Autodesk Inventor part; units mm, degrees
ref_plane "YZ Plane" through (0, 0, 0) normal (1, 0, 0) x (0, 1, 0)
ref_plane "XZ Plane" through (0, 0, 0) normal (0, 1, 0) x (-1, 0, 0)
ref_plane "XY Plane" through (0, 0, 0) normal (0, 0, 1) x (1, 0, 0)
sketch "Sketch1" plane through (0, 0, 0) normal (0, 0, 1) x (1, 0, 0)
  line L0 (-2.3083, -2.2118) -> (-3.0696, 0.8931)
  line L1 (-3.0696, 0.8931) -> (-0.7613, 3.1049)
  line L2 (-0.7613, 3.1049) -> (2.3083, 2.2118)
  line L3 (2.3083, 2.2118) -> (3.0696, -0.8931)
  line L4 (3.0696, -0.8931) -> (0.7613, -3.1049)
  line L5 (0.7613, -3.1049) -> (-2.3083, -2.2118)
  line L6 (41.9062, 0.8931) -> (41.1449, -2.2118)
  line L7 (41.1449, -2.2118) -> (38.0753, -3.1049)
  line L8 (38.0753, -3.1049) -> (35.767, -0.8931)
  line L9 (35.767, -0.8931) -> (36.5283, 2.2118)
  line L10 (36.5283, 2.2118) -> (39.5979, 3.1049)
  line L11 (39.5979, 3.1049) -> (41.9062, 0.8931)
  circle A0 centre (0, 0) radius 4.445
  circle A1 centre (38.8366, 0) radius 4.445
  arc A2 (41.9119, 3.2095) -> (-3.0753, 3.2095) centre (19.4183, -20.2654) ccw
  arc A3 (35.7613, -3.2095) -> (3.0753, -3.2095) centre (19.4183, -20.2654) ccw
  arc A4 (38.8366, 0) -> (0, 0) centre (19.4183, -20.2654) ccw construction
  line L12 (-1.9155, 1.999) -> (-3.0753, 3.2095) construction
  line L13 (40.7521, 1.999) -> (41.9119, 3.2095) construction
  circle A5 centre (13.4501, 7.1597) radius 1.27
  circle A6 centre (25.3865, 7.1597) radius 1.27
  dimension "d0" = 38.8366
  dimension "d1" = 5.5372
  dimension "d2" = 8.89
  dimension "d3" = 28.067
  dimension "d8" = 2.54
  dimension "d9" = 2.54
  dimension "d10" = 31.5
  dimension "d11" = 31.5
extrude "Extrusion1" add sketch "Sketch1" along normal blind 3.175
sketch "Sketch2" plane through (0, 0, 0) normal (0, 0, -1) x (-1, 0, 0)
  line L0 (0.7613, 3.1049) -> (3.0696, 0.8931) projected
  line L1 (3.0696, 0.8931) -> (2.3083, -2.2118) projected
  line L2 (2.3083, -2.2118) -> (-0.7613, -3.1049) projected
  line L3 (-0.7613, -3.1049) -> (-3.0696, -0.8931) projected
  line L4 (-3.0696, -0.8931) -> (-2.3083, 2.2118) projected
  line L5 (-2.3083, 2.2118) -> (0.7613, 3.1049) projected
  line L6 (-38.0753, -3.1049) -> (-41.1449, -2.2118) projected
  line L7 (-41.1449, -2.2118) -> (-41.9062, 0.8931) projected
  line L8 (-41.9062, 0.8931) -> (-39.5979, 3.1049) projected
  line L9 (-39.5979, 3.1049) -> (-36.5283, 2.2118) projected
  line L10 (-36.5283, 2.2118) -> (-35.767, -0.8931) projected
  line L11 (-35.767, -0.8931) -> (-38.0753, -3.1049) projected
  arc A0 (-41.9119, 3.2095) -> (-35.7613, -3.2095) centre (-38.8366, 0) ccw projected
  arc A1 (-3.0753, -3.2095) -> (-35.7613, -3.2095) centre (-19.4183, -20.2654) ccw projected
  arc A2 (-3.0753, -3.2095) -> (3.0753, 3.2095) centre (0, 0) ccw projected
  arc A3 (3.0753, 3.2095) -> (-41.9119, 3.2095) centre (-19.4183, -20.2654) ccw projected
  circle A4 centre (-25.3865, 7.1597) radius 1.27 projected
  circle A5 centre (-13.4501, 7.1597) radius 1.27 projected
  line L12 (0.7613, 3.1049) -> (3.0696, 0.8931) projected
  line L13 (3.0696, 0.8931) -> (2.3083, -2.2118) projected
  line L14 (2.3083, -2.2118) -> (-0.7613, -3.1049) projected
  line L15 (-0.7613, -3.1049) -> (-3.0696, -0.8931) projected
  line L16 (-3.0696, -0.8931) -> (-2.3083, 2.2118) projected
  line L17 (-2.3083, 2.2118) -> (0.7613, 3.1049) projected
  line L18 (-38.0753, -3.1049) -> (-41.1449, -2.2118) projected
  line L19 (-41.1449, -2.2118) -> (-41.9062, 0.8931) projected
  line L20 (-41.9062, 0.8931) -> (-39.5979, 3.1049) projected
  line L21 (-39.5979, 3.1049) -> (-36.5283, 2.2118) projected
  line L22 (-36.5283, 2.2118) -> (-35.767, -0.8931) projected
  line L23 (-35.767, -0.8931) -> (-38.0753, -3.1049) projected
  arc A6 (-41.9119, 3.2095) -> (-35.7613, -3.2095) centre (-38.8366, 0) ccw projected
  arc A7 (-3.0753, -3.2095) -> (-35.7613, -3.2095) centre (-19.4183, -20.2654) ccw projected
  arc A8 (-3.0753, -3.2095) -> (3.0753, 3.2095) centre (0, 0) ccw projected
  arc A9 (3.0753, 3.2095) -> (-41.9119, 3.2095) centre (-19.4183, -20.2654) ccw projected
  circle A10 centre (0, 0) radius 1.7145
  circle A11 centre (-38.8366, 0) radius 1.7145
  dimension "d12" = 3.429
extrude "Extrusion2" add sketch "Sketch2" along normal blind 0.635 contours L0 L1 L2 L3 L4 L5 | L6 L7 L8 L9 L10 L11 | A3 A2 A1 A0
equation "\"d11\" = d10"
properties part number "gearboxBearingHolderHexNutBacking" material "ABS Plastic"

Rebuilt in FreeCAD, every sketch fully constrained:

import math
import FreeCAD as App
import Part
import Sketcher
from FreeCAD import Vector
Q = App.Units.Quantity


def add_polygon(sketch, points):
    """Adds a closed chain of lines whose ends are joined by coincident constraints."""
    first, n = sketch.GeometryCount, len(points)
    for a, b in zip(points, points[1:] + points[:1]):
        sketch.addGeometry(Part.LineSegment(App.Vector(*a, 0), App.Vector(*b, 0)), False)
    for i in range(n):
        sketch.addConstraint(Sketcher.Constraint("Coincident", first + i, 2, first + (i + 1) % n, 1))

doc = App.newDocument("Part")
body = doc.addObject("PartDesign::Body", "Body")

# Sketch on XY plane
sketch1 = doc.addObject("Sketcher::SketchObject", "Sketch")
body.addObject(sketch1)
sketch1.AttachmentSupport = (doc.XY_Plane, [""])
sketch1.MapMode = "FlatFace"
sketch1.addGeometry(Part.ArcOfCircle(Part.Circle(Vector(0, 0, 0), Vector(0, 0, 1), 4.445), math.radians(133.776743), math.radians(313.776743)), False)  # 0
sketch1.addGeometry(Part.ArcOfCircle(Part.Circle(Vector(19.4183, -20.2654, 0), Vector(0, 0, 1), 23.621968), math.radians(46.222794), math.radians(133.777206)), False)  # 1
sketch1.addGeometry(Part.ArcOfCircle(Part.Circle(Vector(38.8366, 0, 0), Vector(0, 0, 1), 4.445), math.radians(-133.776743), math.radians(46.223257)), False)  # 2
sketch1.addGeometry(Part.ArcOfCircle(Part.Circle(Vector(19.4183, -20.2654, 0), Vector(0, 0, 1), 32.512043), math.radians(46.22292), math.radians(133.77708)), False)  # 3
add_polygon(sketch1, [(0.7613, -3.1049), (-2.3083, -2.2118), (-3.0696, 0.8931), (-0.7613, 3.1049), (2.3083, 2.2118), (3.0696, -0.8931)])  # lines 4-9
sketch1.addGeometry(Part.Circle(Vector(13.4501, 7.1597, 0), Vector(0, 0, 1), 1.27), False)  # 10
sketch1.addGeometry(Part.Circle(Vector(25.3865, 7.1597, 0), Vector(0, 0, 1), 1.27), False)  # 11
add_polygon(sketch1, [(41.9062, 0.8931), (41.1449, -2.2118), (38.0753, -3.1049), (35.767, -0.8931), (36.5283, 2.2118), (39.5979, 3.1049)])  # lines 12-17
sketch1.addConstraint(Sketcher.Constraint("Tangent", 0, 2, 1, 2))
sketch1.addConstraint(Sketcher.Constraint("Tangent", 1, 1, 2, 1))
sketch1.addConstraint(Sketcher.Constraint("Tangent", 2, 2, 3, 1))
sketch1.addConstraint(Sketcher.Constraint("Tangent", 3, 2, 0, 1))
sketch1.addConstraint(Sketcher.Constraint("Coincident", 0, 3, -1, 1))
sketch1.addConstraint(Sketcher.Constraint("Coincident", 3, 3, 1, 3))
sketch1.addConstraint(Sketcher.Constraint("Equal", 10, 11))
sketch1.addConstraint(Sketcher.Constraint("Symmetric", 4, 2, 7, 2, -1, 1))
sketch1.addConstraint(Sketcher.Constraint("Symmetric", 5, 2, 8, 2, -1, 1))
sketch1.addConstraint(Sketcher.Constraint("Symmetric", 6, 2, 9, 2, -1, 1))
sketch1.addConstraint(Sketcher.Constraint("PointOnObject", 2, 3, -1))
sketch1.addConstraint(Sketcher.Constraint("Parallel", 12, 15))
sketch1.addConstraint(Sketcher.Constraint("Parallel", 13, 16))
sketch1.addConstraint(Sketcher.Constraint("Parallel", 14, 17))
sketch1.addConstraint(Sketcher.Constraint("Horizontal", 10, 3, 11, 3))
sketch1.addConstraint(Sketcher.Constraint("Horizontal", 4, 2, 12, 2))
sketch1.addConstraint(Sketcher.Constraint("Horizontal", 9, 2, 13, 2))
sketch1.addConstraint(Sketcher.Constraint("Horizontal", 8, 2, 14, 2))
sketch1.addConstraint(Sketcher.Constraint("Horizontal", 7, 2, 15, 2))
sketch1.addConstraint(Sketcher.Constraint("Horizontal", 6, 2, 16, 2))
sketch1.addConstraint(Sketcher.Constraint("Equal", 4, 5))
sketch1.addConstraint(Sketcher.Constraint("Equal", 5, 6))
sketch1.addConstraint(Sketcher.Constraint("Equal", 9, 12))
sketch1.addConstraint(Sketcher.Constraint("Equal", 12, 13))
sketch1.addConstraint(Sketcher.Constraint("Equal", 13, 14))
sketch1.addConstraint(Sketcher.Constraint("Diameter", 10, Q("0.1 in")))
sketch1.addConstraint(Sketcher.Constraint("Radius", 0, Q("0.175 in")))
sketch1.addConstraint(Sketcher.Constraint("Radius", 1, Q("0.93 in")))
sketch1.addConstraint(Sketcher.Constraint("DistanceX", -1, 1, 2, 3, Q("1.529 in")))
sketch1.addConstraint(Sketcher.Constraint("DistanceX", 0, 2, 11, 3, Q("0.8784 in")))
sketch1.addConstraint(Sketcher.Constraint("DistanceX", 10, 3, 1, 1, Q("0.8784 in")))
sketch1.addConstraint(Sketcher.Constraint("DistanceX", 3, 2, 4, 2, Q("0.0302 in")))
sketch1.addConstraint(Sketcher.Constraint("DistanceY", 5, 2, 3, 2, Q("0.0912 in")))
sketch1.addConstraint(Sketcher.Constraint("DistanceX", 3, 2, 6, 2, Q("0.0911 in")))
sketch1.addConstraint(Sketcher.Constraint("DistanceY", 0, 2, 6, 2, Q("0.2486 in")))
sketch1.addConstraint(Sketcher.Constraint("DistanceX", 12, 2, 2, 2, Q("0.0302 in")))
sketch1.addConstraint(Sketcher.Constraint("DistanceY", -1, 1, 10, 3, Q("7.1597 mm")))
pad1 = doc.addObject("PartDesign::Pad", "Pad")
body.addObject(pad1)
pad1.Profile = sketch1
pad1.Length = Q("0.125 in")

# Sketch on XY plane
sketch2 = doc.addObject("Sketcher::SketchObject", "Sketch001")
body.addObject(sketch2)
sketch2.AttachmentSupport = (doc.XY_Plane, [""])
sketch2.MapMode = "FlatFace"
sketch2.addGeometry(Part.ArcOfCircle(Part.Circle(Vector(19.4183, -20.2654, 0), Vector(0, 0, 1), 32.512043), math.radians(46.22292), math.radians(133.77708)), False)
sketch2.addGeometry(Part.ArcOfCircle(Part.Circle(Vector(38.8366, 0, 0), Vector(0, 0, 1), 4.445038), math.radians(-133.776743), math.radians(46.223257)), False)
sketch2.addGeometry(Part.ArcOfCircle(Part.Circle(Vector(19.4183, -20.2654, 0), Vector(0, 0, 1), 23.621968), math.radians(46.222794), math.radians(133.777206)), False)
sketch2.addGeometry(Part.ArcOfCircle(Part.Circle(Vector(0, 0, 0), Vector(0, 0, 1), 4.445038), math.radians(133.776743), math.radians(313.776743)), False)
sketch2.addGeometry(Part.Circle(Vector(0, 0, 0), Vector(0, 0, 1), 1.7145), False)
sketch2.addGeometry(Part.Circle(Vector(25.3865, 7.1597, 0), Vector(0, 0, 1), 1.27), False)
sketch2.addGeometry(Part.Circle(Vector(13.4501, 7.1597, 0), Vector(0, 0, 1), 1.27), False)
sketch2.addGeometry(Part.Circle(Vector(38.8366, 0, 0), Vector(0, 0, 1), 1.7145), False)
sketch2.addConstraint(Sketcher.Constraint("Tangent", 0, 1, 1, 2))
sketch2.addConstraint(Sketcher.Constraint("Tangent", 1, 1, 2, 1))
sketch2.addConstraint(Sketcher.Constraint("Tangent", 2, 2, 3, 2))
sketch2.addConstraint(Sketcher.Constraint("Tangent", 3, 1, 0, 2))
sketch2.addConstraint(Sketcher.Constraint("Coincident", 3, 3, -1, 1))
sketch2.addConstraint(Sketcher.Constraint("Coincident", 4, 3, -1, 1))
sketch2.addConstraint(Sketcher.Constraint("Coincident", 2, 3, 0, 3))
sketch2.addConstraint(Sketcher.Constraint("Coincident", 7, 3, 1, 3))
sketch2.addConstraint(Sketcher.Constraint("Equal", 5, 6))
sketch2.addConstraint(Sketcher.Constraint("Equal", 4, 7))
sketch2.addConstraint(Sketcher.Constraint("PointOnObject", 1, 3, -1))
sketch2.addConstraint(Sketcher.Constraint("Horizontal", 5, 3, 6, 3))
sketch2.addConstraint(Sketcher.Constraint("Diameter", 4, Q("0.135 in")))
sketch2.addConstraint(Sketcher.Constraint("Diameter", 5, Q("0.1 in")))
sketch2.addConstraint(Sketcher.Constraint("Radius", 0, Q("1.28 in")))
sketch2.addConstraint(Sketcher.Constraint("Radius", 2, Q("0.93 in")))
sketch2.addConstraint(Sketcher.Constraint("DistanceX", -1, 1, 1, 3, Q("1.529 in")))
sketch2.addConstraint(Sketcher.Constraint("DistanceX", 5, 3, 0, 1, Q("0.6506 in")))
sketch2.addConstraint(Sketcher.Constraint("DistanceX", 3, 1, 6, 3, Q("0.6506 in")))
sketch2.addConstraint(Sketcher.Constraint("DistanceY", -1, 1, 5, 3, Q("7.1597 mm")))
pad2 = doc.addObject("PartDesign::Pad", "Pad001")
body.addObject(pad2)
pad2.Profile = sketch2
pad2.Length = Q("0.025 in")
pad2.Reversed = True

doc.recompute()
